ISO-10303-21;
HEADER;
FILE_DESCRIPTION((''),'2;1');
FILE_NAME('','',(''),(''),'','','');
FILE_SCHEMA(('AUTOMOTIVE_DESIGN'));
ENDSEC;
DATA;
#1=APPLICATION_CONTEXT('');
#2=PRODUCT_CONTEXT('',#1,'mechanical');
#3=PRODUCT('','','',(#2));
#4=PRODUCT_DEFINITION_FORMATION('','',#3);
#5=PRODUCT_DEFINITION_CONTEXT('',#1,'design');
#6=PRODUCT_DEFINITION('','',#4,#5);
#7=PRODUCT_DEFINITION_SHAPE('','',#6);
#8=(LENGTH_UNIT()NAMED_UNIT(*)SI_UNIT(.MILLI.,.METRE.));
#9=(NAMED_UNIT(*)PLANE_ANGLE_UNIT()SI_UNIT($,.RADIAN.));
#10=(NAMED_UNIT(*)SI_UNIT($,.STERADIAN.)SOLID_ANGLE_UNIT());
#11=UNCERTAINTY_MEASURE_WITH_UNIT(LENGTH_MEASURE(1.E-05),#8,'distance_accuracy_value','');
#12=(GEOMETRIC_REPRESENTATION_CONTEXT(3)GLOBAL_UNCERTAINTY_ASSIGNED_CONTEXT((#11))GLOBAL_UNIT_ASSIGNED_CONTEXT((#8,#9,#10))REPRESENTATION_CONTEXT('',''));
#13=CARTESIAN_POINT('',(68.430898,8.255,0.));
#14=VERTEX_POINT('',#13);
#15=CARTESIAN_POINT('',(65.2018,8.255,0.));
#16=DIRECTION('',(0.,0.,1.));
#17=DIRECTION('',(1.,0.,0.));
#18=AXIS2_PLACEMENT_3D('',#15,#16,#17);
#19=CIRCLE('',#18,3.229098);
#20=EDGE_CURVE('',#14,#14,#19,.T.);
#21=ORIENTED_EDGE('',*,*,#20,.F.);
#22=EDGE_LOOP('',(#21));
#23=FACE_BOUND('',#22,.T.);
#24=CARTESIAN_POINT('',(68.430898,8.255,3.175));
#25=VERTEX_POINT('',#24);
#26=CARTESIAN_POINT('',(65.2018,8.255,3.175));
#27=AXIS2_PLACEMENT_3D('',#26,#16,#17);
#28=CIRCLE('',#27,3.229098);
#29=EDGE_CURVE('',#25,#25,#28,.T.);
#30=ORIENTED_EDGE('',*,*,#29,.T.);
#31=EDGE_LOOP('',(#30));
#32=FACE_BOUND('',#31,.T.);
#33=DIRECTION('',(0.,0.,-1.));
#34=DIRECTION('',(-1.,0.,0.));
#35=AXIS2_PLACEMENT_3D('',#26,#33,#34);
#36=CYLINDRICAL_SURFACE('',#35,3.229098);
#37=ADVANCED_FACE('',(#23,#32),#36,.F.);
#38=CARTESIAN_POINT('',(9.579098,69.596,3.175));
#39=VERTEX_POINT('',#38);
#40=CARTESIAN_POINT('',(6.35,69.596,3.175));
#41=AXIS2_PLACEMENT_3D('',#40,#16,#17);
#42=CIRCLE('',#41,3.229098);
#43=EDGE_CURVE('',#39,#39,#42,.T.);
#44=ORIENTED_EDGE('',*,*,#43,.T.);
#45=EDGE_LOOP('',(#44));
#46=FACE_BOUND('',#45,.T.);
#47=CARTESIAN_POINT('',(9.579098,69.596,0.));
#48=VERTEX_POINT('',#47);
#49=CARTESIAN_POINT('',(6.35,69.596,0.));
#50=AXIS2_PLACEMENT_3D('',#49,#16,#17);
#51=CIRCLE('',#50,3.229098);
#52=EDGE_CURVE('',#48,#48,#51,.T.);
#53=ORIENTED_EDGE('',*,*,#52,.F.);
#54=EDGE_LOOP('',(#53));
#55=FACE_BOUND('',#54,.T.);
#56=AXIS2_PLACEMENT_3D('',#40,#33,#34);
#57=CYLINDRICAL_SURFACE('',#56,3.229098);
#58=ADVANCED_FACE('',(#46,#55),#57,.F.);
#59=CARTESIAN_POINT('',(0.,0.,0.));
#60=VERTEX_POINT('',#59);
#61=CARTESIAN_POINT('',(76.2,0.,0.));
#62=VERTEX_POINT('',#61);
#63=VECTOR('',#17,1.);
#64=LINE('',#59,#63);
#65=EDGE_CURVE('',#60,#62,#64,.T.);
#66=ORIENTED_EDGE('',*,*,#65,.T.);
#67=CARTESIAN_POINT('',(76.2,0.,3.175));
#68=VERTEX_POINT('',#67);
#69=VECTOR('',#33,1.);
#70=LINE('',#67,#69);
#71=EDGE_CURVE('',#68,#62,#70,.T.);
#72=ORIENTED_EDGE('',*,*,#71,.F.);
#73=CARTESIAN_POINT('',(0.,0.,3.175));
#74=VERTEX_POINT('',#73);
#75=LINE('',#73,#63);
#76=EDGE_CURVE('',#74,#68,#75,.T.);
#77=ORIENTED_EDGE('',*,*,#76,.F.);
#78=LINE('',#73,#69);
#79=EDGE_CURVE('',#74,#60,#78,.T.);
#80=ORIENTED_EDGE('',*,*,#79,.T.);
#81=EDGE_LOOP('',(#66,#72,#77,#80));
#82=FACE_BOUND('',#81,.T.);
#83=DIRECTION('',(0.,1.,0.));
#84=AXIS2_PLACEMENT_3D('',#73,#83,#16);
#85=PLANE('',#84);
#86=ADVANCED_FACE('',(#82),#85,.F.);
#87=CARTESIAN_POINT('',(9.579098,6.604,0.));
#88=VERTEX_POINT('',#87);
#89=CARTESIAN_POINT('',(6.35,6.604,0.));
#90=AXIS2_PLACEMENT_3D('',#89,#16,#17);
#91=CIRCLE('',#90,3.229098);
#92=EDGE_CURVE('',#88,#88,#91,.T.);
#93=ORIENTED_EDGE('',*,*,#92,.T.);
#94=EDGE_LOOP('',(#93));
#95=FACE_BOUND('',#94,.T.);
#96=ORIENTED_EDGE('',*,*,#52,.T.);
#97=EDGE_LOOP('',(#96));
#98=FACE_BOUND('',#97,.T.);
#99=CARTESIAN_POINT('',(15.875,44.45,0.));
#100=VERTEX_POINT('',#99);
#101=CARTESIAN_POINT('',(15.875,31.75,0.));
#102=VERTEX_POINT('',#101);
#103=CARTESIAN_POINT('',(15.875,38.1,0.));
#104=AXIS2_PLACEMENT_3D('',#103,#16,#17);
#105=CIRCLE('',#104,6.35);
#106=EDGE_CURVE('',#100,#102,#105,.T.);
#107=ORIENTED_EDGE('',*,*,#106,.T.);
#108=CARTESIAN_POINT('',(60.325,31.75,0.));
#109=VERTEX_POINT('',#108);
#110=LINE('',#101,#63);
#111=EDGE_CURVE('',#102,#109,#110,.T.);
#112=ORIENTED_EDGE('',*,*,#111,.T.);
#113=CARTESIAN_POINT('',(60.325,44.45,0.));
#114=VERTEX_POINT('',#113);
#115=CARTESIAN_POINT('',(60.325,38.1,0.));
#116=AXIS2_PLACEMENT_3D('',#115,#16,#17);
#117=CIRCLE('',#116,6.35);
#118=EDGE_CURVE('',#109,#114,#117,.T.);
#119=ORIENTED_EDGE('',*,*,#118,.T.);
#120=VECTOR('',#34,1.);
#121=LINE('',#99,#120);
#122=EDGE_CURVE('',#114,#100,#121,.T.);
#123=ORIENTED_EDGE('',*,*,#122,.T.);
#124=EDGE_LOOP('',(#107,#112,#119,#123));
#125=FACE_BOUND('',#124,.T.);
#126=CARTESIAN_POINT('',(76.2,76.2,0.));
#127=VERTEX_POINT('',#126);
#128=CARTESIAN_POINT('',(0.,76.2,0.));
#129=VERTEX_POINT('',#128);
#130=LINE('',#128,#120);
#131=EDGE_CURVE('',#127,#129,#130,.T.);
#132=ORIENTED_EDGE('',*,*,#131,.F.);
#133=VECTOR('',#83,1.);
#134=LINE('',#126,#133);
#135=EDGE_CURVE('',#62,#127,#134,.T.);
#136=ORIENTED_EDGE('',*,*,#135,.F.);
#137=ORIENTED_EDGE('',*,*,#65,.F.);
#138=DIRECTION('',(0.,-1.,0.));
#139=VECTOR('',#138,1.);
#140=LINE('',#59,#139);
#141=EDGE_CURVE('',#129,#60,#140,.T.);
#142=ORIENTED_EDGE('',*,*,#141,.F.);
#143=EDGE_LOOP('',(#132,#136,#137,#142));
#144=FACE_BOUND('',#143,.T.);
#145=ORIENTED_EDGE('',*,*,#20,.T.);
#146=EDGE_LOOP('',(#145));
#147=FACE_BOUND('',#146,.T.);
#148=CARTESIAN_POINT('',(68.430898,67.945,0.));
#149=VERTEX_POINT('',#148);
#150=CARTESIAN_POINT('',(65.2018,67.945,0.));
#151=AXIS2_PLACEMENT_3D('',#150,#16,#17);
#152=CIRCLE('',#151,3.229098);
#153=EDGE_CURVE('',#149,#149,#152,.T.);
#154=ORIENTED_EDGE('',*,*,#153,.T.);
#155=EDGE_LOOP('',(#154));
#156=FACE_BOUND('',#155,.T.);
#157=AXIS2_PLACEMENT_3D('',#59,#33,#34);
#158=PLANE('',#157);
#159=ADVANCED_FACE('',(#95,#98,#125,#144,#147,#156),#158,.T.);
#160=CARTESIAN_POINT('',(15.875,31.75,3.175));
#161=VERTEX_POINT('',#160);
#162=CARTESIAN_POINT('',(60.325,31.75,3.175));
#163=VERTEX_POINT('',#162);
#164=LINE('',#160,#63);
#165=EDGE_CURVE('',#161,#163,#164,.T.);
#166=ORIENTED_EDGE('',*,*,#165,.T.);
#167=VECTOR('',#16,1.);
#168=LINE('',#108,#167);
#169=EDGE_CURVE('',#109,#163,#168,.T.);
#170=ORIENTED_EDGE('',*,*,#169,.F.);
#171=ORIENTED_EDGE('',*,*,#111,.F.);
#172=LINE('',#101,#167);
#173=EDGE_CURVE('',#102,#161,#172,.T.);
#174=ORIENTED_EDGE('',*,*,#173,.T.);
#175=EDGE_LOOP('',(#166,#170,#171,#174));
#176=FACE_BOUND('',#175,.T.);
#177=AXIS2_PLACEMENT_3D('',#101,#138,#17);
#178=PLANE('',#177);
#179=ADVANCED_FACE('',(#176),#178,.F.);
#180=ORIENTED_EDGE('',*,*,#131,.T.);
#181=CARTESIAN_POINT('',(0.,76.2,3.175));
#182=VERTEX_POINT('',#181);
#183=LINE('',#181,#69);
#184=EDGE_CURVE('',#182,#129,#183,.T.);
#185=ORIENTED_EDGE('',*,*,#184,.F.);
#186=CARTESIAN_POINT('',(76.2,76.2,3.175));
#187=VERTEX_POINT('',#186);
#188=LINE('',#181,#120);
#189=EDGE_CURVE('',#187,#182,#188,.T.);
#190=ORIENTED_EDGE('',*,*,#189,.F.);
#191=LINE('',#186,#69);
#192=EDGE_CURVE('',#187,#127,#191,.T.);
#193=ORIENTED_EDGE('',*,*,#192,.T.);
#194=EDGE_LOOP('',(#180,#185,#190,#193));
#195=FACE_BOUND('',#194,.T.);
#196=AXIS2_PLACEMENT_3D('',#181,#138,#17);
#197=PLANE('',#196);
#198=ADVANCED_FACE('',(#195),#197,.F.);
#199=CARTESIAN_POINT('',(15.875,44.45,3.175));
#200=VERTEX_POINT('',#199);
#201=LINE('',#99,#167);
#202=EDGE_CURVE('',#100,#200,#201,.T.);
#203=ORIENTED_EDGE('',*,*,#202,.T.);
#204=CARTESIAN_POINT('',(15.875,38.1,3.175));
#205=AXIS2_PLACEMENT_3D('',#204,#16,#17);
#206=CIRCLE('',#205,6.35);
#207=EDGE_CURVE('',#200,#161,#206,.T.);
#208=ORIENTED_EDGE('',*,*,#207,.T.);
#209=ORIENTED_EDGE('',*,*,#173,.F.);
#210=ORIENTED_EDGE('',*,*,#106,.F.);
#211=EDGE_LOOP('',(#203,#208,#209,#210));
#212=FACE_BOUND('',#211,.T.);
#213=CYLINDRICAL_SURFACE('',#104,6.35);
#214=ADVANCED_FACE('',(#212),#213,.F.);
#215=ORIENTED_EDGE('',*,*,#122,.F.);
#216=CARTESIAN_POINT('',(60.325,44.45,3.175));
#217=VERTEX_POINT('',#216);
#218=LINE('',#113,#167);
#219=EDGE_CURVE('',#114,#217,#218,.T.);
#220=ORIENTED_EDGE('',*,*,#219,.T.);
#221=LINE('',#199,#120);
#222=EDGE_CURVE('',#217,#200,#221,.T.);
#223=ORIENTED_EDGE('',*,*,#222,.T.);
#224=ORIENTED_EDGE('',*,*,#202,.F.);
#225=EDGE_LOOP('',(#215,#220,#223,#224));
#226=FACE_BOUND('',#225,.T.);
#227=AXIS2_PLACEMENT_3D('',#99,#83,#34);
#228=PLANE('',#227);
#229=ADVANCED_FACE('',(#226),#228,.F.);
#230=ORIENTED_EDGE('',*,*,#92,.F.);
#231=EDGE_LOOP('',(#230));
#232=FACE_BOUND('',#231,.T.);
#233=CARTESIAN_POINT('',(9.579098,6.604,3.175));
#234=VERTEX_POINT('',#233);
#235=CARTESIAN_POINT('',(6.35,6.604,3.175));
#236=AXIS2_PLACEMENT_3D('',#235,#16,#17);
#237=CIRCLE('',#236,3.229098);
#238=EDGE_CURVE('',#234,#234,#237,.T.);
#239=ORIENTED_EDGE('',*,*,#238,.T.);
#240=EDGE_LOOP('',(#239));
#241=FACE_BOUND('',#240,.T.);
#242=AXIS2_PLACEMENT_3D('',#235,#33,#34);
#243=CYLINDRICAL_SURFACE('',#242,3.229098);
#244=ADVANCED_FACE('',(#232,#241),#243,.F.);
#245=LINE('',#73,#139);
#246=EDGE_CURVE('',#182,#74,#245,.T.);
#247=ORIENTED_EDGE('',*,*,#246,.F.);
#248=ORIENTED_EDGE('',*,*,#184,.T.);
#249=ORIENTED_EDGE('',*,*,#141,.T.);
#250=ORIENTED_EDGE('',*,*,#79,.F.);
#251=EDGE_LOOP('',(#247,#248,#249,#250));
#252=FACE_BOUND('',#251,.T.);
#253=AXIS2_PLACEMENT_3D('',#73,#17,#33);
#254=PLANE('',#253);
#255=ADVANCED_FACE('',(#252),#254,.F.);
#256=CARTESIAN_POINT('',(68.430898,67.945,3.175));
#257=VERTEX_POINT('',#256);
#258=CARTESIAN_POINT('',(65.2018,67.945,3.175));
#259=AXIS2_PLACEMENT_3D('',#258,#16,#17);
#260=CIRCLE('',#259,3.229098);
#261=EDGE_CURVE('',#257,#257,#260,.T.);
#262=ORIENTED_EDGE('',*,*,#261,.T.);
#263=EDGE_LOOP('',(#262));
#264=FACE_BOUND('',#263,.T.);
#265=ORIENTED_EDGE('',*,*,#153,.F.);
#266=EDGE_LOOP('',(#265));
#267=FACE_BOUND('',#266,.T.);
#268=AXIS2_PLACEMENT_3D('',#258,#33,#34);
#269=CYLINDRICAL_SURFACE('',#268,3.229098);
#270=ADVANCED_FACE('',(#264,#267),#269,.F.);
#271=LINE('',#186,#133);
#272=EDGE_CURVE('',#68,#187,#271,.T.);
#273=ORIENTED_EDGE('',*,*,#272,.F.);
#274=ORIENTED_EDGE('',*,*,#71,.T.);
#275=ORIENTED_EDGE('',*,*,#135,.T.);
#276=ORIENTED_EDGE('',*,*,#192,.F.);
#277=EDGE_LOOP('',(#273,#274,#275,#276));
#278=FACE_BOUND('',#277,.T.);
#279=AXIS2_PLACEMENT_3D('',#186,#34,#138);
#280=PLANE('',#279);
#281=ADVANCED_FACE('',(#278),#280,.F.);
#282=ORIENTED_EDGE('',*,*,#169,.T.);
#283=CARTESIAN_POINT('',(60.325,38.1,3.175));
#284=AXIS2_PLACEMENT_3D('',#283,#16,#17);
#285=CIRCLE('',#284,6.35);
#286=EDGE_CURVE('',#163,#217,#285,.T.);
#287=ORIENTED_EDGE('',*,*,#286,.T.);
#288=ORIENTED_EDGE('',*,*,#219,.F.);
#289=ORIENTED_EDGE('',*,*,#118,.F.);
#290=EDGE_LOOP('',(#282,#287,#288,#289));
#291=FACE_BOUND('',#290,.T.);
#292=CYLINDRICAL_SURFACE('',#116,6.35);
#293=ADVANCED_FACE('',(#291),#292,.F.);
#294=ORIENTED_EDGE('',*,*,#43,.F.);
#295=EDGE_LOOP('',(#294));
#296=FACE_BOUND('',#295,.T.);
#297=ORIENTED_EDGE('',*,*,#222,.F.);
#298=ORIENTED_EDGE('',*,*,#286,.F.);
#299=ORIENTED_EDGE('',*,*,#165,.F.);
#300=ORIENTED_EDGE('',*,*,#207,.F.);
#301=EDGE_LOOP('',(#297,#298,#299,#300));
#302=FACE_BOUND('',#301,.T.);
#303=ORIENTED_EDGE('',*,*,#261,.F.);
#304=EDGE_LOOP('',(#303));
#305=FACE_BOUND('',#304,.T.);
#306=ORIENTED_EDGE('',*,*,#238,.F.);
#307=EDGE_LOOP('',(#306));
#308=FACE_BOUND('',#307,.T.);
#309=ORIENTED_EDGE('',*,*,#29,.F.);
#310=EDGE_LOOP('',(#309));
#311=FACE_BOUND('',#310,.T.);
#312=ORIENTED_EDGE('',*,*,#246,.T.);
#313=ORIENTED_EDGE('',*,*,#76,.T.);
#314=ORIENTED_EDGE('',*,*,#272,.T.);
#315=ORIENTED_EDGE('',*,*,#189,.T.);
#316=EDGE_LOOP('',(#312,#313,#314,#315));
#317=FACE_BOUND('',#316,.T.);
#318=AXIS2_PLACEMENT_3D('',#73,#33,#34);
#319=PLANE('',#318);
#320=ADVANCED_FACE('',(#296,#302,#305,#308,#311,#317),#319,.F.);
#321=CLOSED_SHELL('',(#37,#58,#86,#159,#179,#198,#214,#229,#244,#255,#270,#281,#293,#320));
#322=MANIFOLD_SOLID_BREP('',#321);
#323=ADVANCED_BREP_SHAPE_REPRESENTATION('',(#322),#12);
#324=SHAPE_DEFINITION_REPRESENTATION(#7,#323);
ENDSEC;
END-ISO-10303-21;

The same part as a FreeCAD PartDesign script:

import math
import FreeCAD as App
import Part
import Sketcher
Q = App.Units.Quantity


def add_polygon(sketch, points):
    """Adds a closed chain of lines whose ends are joined by coincident constraints."""
    first, n = sketch.GeometryCount, len(points)
    for a, b in zip(points, points[1:] + points[:1]):
        sketch.addGeometry(Part.LineSegment(App.Vector(*a, 0), App.Vector(*b, 0)), False)
    for i in range(n):
        sketch.addConstraint(Sketcher.Constraint("Coincident", first + i, 2, first + (i + 1) % n, 1))

doc = App.newDocument("Part")
body = doc.addObject("PartDesign::Body", "Body")

sketch1 = body.newObject("Sketcher::SketchObject", "Sketch")
sketch1.AttachmentSupport = (doc.getObject("XY_Plane"), [""])
sketch1.MapMode = "FlatFace"
add_polygon(sketch1, [(0, 76.2), (0, 0), (76.2, 0), (76.2, 76.2)])
sketch1.addGeometry(Part.Circle(App.Vector(6.3, 6.6, 0), App.Vector(0, 0, 1), 3.2), False)
sketch1.addGeometry(Part.Circle(App.Vector(65.2, 8.3, 0), App.Vector(0, 0, 1), 3.2), False)
sketch1.addGeometry(Part.Circle(App.Vector(6.3, 69.6, 0), App.Vector(0, 0, 1), 3.2), False)
sketch1.addGeometry(Part.Circle(App.Vector(65.2, 67.9, 0), App.Vector(0, 0, 1), 3.2), False)
sketch1.addConstraint([
    Sketcher.Constraint("Vertical", 0),
    Sketcher.Constraint("Horizontal", 1),
    Sketcher.Constraint("Vertical", 2),
    Sketcher.Constraint("Horizontal", 3),
    Sketcher.Constraint("Coincident", 0, 2, -1, 1),
    Sketcher.Constraint("Equal", 4, 5),
    Sketcher.Constraint("Equal", 5, 6),
    Sketcher.Constraint("Equal", 6, 7),
    Sketcher.Constraint("Vertical", 4, 3, 6, 3),
    Sketcher.Constraint("Vertical", 5, 3, 7, 3),
    Sketcher.Constraint("Equal", 3, 0),
    Sketcher.Constraint("DistanceX", 1, 1, 1, 2, Q("3 in")),
    Sketcher.Constraint("DistanceX", -1, 1, 4, 3, Q("0.25 in")),
    Sketcher.Constraint("DistanceY", -1, 1, 4, 3, Q("0.26 in")),
    Sketcher.Constraint("DistanceY", -1, 1, 6, 3, Q("2.74 in")),
    Sketcher.Constraint("DistanceY", 5, 3, 7, 3, Q("2.35 in")),
    Sketcher.Constraint("DistanceX", -1, 1, 5, 3, Q("2.567 in")),
    Sketcher.Constraint("DistanceY", -1, 1, 5, 3, Q("0.325 in")),
    Sketcher.Constraint("Diameter", 4, 6.458195),
])
pad1 = body.newObject("PartDesign::Pad", "Pad")
pad1.Profile = sketch1
pad1.Length = Q("0.125 in")

sketch2 = body.newObject("Sketcher::SketchObject", "Sketch001")
sketch2.AttachmentSupport = (doc.getObject("XY_Plane"), [""])
sketch2.MapMode = "FlatFace"
sketch2.AttachmentOffset = App.Placement(App.Vector(0, 0, 0.125 * 25.4), App.Rotation())
sketch2.addGeometry([
    Part.LineSegment(App.Vector(60, 44, 0), App.Vector(16, 44, 0)),
    Part.ArcOfCircle(Part.Circle(App.Vector(16, 38, 0), App.Vector(0, 0, 1), 6), math.radians(90), math.radians(270)),
    Part.LineSegment(App.Vector(16, 32, 0), App.Vector(60, 32, 0)),
    Part.ArcOfCircle(Part.Circle(App.Vector(60, 38, 0), App.Vector(0, 0, 1), 6), math.radians(-90), math.radians(90)),
], False)
sketch2.addConstraint([
    Sketcher.Constraint("Tangent", 0, 2, 1, 1),
    Sketcher.Constraint("Tangent", 1, 2, 2, 1),
    Sketcher.Constraint("Tangent", 2, 2, 3, 1),
    Sketcher.Constraint("Tangent", 3, 2, 0, 1),
    Sketcher.Constraint("Horizontal", 0),
    Sketcher.Constraint("Horizontal", 2),
    Sketcher.Constraint("Radius", 1, Q("0.25 in")),
    Sketcher.Constraint("DistanceX", 0, 2, 0, 1, Q("1.75 in")),
    Sketcher.Constraint("DistanceY", -1, 1, 1, 3, Q("1.5 in")),
    Sketcher.Constraint("DistanceX", -1, 1, 1, 3, Q("0.625 in")),
])
pocket1 = body.newObject("PartDesign::Pocket", "Pocket")
pocket1.Profile = sketch2
pocket1.Length = Q("0.125 in")

doc.recompute()
